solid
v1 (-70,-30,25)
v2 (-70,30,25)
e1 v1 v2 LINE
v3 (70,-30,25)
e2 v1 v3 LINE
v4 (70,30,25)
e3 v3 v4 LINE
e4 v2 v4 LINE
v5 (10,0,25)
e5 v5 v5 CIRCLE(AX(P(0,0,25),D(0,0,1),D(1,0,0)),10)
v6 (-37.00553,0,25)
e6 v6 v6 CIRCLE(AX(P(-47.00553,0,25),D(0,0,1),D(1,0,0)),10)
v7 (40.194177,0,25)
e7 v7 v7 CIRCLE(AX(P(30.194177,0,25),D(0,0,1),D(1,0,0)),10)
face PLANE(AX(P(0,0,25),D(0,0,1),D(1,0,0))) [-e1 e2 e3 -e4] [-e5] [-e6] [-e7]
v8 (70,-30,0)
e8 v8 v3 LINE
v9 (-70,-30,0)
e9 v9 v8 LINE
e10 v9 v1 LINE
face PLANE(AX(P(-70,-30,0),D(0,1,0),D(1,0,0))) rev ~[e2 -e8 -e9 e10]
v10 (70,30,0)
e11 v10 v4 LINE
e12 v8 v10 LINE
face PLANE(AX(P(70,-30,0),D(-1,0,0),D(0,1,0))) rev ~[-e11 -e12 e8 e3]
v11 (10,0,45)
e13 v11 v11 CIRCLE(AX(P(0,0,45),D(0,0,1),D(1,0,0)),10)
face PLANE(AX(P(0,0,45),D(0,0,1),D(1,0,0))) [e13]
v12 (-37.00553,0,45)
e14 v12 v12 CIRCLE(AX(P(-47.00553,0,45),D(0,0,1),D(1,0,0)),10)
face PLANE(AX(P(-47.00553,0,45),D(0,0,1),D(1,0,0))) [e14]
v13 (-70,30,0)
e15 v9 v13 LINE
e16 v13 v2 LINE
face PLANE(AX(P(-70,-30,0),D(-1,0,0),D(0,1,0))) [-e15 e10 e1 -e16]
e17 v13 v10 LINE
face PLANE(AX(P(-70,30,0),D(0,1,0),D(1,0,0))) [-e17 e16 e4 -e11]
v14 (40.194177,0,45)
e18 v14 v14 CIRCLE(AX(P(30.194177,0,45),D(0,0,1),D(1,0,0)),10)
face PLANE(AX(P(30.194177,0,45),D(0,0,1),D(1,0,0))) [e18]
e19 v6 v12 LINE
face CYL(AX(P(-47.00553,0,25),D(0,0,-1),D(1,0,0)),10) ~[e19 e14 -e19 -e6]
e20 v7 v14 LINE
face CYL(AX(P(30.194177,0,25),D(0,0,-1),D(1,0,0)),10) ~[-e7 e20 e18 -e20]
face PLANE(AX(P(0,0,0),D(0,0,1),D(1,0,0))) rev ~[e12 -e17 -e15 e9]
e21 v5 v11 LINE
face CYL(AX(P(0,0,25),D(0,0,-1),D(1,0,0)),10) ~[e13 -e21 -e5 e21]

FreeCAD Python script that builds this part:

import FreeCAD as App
import Part
import Sketcher
from FreeCAD import Vector
Q = App.Units.Quantity


def add_polygon(sketch, points):
    """Adds a closed chain of lines whose ends are joined by coincident constraints."""
    first, n = sketch.GeometryCount, len(points)
    for a, b in zip(points, points[1:] + points[:1]):
        sketch.addGeometry(Part.LineSegment(App.Vector(*a, 0), App.Vector(*b, 0)), False)
    for i in range(n):
        sketch.addConstraint(Sketcher.Constraint("Coincident", first + i, 2, first + (i + 1) % n, 1))

doc = App.newDocument("Part")
body = doc.addObject("PartDesign::Body", "Body")

sketch1 = doc.addObject("Sketcher::SketchObject", "Sketch")
body.addObject(sketch1)
sketch1.AttachmentSupport = (doc.XY_Plane, [""])
sketch1.MapMode = "FlatFace"
add_polygon(sketch1, [(-70, 30), (-70, -30), (70, -30), (70, 30)])
sketch1.addConstraint(Sketcher.Constraint("Vertical", 0))
sketch1.addConstraint(Sketcher.Constraint("Horizontal", 1))
sketch1.addConstraint(Sketcher.Constraint("Vertical", 2))
sketch1.addConstraint(Sketcher.Constraint("Horizontal", 3))
sketch1.addConstraint(Sketcher.Constraint("Symmetric", 0, 2, 2, 2, -1, 1))
sketch1.addConstraint(Sketcher.Constraint("DistanceX", 1, 1, 1, 2, Q("140 mm")))
sketch1.addConstraint(Sketcher.Constraint("DistanceY", 0, 2, 0, 1, Q("60 mm")))
pad1 = doc.addObject("PartDesign::Pad", "Pad")
body.addObject(pad1)
pad1.Profile = sketch1
pad1.Length = 25

sketch2 = doc.addObject("Sketcher::SketchObject", "Sketch001")
body.addObject(sketch2)
sketch2.AttachmentSupport = (doc.XY_Plane, [""])
sketch2.MapMode = "FlatFace"
sketch2.AttachmentOffset = App.Placement(Vector(0, 0, 25), App.Rotation())
sketch2.addGeometry(Part.Circle(Vector(-47.00553, 0, 0), Vector(0, 0, 1), 10), False)
sketch2.addConstraint(Sketcher.Constraint("PointOnObject", 0, 3, -1))
sketch2.addConstraint(Sketcher.Constraint("Diameter", 0, Q("20 mm")))
sketch2.addConstraint(Sketcher.Constraint("DistanceX", 0, 3, -1, 1, Q("47.00553 mm")))
pad2 = doc.addObject("PartDesign::Pad", "Pad001")
body.addObject(pad2)
pad2.Profile = sketch2
pad2.Length = 20

sketch3 = doc.addObject("Sketcher::SketchObject", "Sketch002")
body.addObject(sketch3)
sketch3.AttachmentSupport = (doc.XY_Plane, [""])
sketch3.MapMode = "FlatFace"
sketch3.AttachmentOffset = App.Placement(Vector(0, 0, 25), App.Rotation())
sketch3.addGeometry(Part.Circle(Vector(0, 0, 0), Vector(0, 0, 1), 10), False)
sketch3.addConstraint(Sketcher.Constraint("Coincident", 0, 3, -1, 1))
sketch3.addConstraint(Sketcher.Constraint("Diameter", 0, Q("20 mm")))
pad3 = doc.addObject("PartDesign::Pad", "Pad002")
body.addObject(pad3)
pad3.Profile = sketch3
pad3.Length = 20

sketch4 = doc.addObject("Sketcher::SketchObject", "Sketch003")
body.addObject(sketch4)
sketch4.AttachmentSupport = (doc.XY_Plane, [""])
sketch4.MapMode = "FlatFace"
sketch4.AttachmentOffset = App.Placement(Vector(0, 0, 25), App.Rotation())
sketch4.addGeometry(Part.Circle(Vector(30.194177, 0, 0), Vector(0, 0, 1), 10), False)
sketch4.addConstraint(Sketcher.Constraint("PointOnObject", 0, 3, -1))
sketch4.addConstraint(Sketcher.Constraint("Diameter", 0, Q("20 mm")))
sketch4.addConstraint(Sketcher.Constraint("DistanceX", -1, 1, 0, 3, Q("30.194177 mm")))
pad4 = doc.addObject("PartDesign::Pad", "Pad003")
body.addObject(pad4)
pad4.Profile = sketch4
pad4.Length = 20

doc.recompute()
